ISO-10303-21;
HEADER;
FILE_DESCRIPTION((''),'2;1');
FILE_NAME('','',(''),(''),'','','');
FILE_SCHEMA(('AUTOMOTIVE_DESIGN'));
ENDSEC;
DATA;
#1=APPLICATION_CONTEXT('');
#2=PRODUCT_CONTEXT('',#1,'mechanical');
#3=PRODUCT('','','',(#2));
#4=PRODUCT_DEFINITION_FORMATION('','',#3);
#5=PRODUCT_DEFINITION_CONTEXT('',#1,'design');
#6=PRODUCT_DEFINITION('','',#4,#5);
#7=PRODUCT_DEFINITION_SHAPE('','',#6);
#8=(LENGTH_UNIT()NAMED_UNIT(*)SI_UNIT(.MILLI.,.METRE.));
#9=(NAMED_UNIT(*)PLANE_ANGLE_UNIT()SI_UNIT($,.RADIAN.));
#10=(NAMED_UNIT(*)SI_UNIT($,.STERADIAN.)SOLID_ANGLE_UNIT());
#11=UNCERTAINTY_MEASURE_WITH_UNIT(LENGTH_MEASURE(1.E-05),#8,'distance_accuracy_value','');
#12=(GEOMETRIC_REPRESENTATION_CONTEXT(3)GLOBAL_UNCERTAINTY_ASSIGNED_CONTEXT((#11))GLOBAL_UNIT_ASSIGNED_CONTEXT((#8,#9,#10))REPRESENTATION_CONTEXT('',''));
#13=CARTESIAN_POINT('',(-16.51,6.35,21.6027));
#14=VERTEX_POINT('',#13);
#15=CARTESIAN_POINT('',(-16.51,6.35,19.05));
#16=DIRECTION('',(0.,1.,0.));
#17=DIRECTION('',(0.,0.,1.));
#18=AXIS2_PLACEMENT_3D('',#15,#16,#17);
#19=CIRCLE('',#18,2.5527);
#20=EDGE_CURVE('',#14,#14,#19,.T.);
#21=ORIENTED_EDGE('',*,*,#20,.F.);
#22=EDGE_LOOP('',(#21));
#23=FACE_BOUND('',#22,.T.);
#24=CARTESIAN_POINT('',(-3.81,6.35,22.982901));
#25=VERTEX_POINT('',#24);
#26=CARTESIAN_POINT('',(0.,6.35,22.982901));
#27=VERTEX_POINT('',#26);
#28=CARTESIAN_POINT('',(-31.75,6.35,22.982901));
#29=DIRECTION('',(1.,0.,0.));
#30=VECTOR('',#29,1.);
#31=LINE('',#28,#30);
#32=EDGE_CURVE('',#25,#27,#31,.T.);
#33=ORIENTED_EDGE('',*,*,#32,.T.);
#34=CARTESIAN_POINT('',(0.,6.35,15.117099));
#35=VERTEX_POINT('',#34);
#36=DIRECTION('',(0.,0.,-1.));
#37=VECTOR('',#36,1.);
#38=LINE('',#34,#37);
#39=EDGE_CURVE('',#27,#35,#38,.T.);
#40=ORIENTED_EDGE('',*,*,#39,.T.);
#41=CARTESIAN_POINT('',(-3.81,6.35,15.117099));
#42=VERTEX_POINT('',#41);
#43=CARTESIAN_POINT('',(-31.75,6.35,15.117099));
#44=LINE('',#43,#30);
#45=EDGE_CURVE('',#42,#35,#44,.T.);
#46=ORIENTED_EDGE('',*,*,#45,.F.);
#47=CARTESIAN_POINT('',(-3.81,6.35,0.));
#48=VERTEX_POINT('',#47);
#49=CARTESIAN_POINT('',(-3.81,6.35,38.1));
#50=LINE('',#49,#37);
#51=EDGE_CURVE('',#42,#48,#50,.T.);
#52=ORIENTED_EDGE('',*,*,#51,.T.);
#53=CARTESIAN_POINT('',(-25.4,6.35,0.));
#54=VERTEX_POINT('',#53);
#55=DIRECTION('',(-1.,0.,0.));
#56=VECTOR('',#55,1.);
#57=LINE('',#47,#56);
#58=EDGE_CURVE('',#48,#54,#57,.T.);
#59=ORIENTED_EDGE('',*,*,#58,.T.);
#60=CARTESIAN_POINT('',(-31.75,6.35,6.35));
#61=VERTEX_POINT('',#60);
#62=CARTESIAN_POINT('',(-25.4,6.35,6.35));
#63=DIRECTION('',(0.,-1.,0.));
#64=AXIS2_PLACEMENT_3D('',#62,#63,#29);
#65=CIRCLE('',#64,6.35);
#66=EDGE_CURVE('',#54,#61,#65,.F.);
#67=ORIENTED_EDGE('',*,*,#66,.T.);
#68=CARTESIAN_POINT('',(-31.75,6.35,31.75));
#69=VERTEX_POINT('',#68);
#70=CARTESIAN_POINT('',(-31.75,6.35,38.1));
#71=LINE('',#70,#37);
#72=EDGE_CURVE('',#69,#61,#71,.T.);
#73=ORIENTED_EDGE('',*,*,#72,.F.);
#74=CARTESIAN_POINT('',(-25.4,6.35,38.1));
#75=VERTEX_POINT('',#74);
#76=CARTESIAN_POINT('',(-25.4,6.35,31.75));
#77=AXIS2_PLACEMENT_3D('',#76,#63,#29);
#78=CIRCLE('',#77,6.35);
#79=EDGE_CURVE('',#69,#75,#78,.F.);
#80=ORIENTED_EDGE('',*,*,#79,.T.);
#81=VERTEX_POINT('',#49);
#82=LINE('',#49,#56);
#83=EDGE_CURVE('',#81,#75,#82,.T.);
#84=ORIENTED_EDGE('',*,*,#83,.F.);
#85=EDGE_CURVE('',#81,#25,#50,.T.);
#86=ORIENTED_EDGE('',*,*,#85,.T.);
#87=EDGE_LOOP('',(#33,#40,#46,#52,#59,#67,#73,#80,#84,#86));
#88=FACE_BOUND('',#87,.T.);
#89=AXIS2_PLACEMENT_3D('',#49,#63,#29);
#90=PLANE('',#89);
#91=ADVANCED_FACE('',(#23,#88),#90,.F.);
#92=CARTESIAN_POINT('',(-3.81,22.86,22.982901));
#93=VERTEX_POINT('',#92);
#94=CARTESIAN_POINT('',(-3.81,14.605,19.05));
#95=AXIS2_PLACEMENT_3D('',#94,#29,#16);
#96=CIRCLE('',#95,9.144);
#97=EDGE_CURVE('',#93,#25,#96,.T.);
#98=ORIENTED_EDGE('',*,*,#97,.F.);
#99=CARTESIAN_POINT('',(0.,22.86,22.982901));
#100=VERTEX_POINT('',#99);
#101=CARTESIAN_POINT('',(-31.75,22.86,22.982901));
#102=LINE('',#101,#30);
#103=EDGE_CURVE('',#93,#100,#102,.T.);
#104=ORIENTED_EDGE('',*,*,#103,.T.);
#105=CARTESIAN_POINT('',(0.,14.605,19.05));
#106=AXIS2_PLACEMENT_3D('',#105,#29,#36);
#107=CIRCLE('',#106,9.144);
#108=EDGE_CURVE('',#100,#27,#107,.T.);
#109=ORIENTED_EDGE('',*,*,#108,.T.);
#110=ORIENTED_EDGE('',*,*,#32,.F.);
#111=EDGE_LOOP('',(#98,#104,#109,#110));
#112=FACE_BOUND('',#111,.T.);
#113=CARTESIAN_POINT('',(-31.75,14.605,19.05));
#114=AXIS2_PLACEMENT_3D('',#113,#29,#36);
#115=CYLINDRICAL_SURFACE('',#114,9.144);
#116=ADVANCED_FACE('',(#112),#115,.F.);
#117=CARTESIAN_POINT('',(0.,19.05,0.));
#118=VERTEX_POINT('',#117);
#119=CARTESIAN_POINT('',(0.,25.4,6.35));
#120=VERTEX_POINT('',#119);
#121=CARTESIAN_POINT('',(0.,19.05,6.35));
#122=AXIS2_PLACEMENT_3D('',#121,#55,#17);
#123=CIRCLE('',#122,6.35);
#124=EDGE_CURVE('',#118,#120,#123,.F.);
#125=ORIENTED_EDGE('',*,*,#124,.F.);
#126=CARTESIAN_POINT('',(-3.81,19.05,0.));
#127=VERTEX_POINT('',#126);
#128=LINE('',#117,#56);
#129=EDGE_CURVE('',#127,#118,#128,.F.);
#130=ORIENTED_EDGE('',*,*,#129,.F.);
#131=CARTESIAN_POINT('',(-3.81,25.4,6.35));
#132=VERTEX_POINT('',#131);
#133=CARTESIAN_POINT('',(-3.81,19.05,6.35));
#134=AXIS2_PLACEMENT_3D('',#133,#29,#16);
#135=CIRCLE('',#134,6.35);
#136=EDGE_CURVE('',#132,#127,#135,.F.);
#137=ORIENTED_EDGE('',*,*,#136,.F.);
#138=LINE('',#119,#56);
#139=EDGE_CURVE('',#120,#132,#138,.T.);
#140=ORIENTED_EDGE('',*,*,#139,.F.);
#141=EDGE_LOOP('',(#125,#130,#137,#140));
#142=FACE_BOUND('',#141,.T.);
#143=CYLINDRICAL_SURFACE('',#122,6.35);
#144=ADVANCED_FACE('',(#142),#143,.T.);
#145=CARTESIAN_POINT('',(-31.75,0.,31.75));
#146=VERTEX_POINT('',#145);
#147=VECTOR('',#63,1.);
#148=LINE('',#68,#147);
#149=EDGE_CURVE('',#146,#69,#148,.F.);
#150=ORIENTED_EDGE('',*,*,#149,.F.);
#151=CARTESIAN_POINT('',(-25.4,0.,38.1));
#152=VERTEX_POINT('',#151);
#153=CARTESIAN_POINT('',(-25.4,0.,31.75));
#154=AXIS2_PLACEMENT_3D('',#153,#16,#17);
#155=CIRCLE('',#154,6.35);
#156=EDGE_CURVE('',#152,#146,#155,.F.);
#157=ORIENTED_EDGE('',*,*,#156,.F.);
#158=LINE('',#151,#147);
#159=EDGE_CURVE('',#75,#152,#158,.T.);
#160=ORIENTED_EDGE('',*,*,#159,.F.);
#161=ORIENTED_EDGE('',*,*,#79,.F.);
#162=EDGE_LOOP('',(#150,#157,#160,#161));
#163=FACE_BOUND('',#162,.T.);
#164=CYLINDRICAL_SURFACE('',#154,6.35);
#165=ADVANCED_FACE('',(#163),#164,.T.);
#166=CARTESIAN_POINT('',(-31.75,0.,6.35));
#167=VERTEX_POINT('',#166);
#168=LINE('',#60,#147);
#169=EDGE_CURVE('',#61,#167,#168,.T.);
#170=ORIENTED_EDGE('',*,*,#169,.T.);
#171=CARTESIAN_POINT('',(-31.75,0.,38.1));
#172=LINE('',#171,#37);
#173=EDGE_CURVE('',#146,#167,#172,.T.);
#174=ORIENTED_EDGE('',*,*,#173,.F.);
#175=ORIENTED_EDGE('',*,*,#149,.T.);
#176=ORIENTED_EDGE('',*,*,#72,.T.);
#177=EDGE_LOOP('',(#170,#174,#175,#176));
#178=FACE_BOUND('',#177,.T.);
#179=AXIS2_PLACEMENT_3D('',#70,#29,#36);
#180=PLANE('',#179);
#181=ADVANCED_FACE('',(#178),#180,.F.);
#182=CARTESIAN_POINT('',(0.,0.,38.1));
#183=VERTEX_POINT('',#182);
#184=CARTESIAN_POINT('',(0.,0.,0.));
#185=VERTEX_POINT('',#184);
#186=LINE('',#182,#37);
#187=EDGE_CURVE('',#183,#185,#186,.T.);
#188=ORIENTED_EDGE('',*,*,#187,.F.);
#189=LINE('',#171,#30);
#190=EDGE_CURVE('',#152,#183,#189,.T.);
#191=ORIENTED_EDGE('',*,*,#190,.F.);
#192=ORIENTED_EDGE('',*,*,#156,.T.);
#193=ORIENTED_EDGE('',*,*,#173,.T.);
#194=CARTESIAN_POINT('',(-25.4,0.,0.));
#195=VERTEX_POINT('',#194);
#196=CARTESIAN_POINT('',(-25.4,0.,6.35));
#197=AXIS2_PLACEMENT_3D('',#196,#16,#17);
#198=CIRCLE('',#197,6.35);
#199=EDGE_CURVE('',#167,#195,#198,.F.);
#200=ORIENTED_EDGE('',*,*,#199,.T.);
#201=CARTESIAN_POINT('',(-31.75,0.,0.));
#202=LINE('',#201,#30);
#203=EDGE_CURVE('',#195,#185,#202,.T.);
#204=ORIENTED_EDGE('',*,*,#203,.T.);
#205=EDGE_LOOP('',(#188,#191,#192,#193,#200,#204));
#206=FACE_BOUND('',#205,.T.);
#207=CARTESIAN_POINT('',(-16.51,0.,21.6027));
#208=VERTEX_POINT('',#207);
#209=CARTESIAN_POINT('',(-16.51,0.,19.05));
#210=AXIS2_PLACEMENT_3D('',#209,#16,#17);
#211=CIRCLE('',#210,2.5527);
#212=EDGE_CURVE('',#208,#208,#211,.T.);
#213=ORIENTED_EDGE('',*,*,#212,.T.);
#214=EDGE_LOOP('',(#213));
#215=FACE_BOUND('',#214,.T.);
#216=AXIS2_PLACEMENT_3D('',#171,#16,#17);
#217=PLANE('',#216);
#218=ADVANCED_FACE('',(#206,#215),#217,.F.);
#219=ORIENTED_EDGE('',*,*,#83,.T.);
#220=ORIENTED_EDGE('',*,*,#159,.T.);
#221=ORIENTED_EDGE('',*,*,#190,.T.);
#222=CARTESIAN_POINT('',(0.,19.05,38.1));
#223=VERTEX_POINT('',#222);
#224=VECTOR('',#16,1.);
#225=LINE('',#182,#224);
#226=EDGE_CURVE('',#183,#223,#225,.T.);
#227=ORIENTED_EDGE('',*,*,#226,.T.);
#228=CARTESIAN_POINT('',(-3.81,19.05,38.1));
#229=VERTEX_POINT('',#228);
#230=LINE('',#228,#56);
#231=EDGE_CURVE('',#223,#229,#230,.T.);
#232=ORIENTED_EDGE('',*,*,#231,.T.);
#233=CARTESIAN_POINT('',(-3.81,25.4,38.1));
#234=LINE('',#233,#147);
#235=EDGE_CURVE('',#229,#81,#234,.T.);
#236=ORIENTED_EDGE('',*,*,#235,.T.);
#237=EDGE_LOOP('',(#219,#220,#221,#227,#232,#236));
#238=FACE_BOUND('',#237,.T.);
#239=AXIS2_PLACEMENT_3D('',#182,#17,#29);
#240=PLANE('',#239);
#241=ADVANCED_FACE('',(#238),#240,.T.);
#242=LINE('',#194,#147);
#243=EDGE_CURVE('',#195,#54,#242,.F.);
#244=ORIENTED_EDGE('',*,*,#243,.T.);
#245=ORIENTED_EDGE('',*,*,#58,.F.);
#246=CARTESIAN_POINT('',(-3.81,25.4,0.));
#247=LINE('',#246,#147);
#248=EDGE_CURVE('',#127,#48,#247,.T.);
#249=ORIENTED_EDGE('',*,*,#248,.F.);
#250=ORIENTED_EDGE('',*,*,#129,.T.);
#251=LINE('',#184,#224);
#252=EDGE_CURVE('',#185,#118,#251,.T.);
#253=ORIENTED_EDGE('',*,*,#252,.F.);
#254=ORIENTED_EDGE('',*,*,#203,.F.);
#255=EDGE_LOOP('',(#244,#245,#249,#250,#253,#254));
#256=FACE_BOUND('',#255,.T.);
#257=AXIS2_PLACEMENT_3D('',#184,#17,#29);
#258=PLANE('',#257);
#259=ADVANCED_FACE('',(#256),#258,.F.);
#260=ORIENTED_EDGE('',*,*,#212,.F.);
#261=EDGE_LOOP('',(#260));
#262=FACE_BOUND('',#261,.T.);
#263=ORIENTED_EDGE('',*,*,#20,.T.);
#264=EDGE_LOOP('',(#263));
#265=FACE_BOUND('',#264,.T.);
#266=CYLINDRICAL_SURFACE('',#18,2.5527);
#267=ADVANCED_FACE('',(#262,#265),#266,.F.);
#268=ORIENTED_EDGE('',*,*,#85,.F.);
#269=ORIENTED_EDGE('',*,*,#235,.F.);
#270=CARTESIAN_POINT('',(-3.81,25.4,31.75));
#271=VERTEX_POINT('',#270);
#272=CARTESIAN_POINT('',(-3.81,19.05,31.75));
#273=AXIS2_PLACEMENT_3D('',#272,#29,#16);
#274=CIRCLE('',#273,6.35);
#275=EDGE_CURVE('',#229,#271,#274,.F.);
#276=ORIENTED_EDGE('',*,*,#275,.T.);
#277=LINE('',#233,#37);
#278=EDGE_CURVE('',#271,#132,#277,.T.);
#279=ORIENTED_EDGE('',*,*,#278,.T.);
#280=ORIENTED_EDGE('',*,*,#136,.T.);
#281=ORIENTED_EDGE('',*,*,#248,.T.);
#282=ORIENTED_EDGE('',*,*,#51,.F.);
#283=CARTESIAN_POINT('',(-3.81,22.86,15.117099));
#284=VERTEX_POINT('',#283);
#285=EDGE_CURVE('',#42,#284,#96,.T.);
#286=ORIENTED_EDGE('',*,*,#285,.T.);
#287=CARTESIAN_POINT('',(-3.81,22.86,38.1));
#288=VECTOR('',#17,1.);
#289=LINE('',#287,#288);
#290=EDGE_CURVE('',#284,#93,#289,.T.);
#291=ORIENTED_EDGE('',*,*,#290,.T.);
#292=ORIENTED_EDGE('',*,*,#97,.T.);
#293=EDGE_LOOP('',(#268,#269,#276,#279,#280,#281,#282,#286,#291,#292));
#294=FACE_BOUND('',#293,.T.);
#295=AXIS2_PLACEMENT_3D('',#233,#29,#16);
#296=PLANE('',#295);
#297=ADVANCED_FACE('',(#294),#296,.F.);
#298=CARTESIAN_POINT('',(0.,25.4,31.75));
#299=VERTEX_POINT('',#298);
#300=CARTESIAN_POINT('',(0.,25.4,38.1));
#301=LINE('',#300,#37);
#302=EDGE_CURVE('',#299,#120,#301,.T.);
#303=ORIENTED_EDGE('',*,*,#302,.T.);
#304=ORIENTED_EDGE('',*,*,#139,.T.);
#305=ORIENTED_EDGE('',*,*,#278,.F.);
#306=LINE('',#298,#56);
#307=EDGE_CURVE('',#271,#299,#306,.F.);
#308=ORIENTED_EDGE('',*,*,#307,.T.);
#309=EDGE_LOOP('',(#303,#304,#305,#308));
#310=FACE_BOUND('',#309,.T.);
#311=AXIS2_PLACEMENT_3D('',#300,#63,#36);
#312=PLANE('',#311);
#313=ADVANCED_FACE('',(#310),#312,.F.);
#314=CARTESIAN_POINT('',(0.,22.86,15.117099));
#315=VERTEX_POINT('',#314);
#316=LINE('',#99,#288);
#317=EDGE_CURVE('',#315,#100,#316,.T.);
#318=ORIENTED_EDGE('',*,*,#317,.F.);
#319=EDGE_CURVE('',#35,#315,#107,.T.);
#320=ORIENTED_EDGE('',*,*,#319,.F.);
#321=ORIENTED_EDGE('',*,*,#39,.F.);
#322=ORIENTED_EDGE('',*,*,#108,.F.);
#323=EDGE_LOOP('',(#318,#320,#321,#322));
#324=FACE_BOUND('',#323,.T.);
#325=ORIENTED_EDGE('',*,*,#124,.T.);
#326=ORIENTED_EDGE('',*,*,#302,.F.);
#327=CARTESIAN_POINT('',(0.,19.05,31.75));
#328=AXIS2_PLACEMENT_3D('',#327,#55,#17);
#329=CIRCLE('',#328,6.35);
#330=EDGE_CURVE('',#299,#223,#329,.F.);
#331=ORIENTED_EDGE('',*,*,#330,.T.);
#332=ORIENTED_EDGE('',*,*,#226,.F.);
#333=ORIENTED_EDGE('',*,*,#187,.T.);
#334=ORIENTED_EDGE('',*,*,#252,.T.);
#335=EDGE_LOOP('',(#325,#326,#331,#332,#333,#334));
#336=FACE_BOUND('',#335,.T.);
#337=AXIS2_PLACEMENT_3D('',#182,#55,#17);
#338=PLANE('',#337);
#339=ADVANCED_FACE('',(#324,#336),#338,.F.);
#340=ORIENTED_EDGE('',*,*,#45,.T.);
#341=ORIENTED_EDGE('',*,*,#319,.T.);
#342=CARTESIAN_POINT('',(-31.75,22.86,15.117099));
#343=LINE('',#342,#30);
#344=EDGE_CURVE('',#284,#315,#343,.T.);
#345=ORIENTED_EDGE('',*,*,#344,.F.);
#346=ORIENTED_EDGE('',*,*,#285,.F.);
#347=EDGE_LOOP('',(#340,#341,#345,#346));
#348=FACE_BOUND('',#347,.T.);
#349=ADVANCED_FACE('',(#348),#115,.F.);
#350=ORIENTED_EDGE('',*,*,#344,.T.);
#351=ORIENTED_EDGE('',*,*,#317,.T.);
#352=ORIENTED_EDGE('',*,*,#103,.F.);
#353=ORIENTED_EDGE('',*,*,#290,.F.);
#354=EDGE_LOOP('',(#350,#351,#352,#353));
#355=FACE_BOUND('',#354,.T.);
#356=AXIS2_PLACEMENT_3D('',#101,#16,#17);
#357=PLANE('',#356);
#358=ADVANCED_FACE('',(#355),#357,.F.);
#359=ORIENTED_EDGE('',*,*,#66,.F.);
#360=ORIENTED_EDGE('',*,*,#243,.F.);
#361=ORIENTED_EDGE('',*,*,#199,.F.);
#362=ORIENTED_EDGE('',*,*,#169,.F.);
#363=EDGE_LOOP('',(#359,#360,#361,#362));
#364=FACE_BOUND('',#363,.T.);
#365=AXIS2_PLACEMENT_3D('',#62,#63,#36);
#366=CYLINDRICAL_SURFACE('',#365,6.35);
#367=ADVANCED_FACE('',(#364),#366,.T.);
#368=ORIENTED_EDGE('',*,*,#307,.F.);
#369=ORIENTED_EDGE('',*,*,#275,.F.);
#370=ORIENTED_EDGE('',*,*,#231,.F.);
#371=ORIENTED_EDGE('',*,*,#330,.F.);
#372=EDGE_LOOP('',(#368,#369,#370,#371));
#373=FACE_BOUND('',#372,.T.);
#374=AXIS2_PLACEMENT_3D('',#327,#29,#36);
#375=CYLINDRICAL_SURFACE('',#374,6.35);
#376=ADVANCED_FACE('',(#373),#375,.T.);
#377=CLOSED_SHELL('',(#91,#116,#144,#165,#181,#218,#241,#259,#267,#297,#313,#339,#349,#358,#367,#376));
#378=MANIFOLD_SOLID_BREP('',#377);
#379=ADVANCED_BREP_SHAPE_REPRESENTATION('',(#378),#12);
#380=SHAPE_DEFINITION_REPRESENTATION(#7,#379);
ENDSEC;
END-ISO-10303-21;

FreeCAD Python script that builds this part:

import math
import FreeCAD as App
import Part
import Sketcher
Q = App.Units.Quantity


def edges_at(feature, points):
    """Names of the edges that pass closest to the given points."""
    edges = feature.Shape.Edges
    near = lambda p: min(range(len(edges)), key=lambda i: edges[i].distToShape(Part.Vertex(*p))[0])
    return sorted({f"Edge{near(p) + 1}" for p in points})


def add_polygon(sketch, points):
    """Adds a closed chain of lines whose ends are joined by coincident constraints."""
    first, n = sketch.GeometryCount, len(points)
    for a, b in zip(points, points[1:] + points[:1]):
        sketch.addGeometry(Part.LineSegment(App.Vector(*a, 0), App.Vector(*b, 0)), False)
    for i in range(n):
        sketch.addConstraint(Sketcher.Constraint("Coincident", first + i, 2, first + (i + 1) % n, 1))

doc = App.newDocument("Part")
body = doc.addObject("PartDesign::Body", "Body")

sketch1 = body.newObject("Sketcher::SketchObject", "Sketch")
sketch1.AttachmentSupport = (doc.getObject("XY_Plane"), [""])
sketch1.MapMode = "FlatFace"
add_polygon(sketch1, [(0, 0), (0, 25.4), (-3.8, 25.4), (-3.8, 6.3), (-31.8, 6.3), (-31.8, 0)])
sketch1.addConstraint(Sketcher.Constraint("Vertical", 0))
sketch1.addConstraint(Sketcher.Constraint("Horizontal", 1))
sketch1.addConstraint(Sketcher.Constraint("Vertical", 2))
sketch1.addConstraint(Sketcher.Constraint("Horizontal", 3))
sketch1.addConstraint(Sketcher.Constraint("Vertical", 4))
sketch1.addConstraint(Sketcher.Constraint("Horizontal", 5))
sketch1.addConstraint(Sketcher.Constraint("Coincident", 5, 2, -1, 1))
sketch1.addConstraint(Sketcher.Constraint("DistanceY", 0, 1, 0, 2, Q("1 in")))
sketch1.addConstraint(Sketcher.Constraint("DistanceX", 3, 2, 3, 1, Q("1.1 in")))
sketch1.addConstraint(Sketcher.Constraint("DistanceX", 1, 2, 1, 1, Q("0.15 in")))
sketch1.addConstraint(Sketcher.Constraint("DistanceY", 2, 2, 2, 1, Q("0.75 in")))
pad1 = body.newObject("PartDesign::Pad", "Pad")
pad1.Profile = sketch1
pad1.Length = Q("1.5 in")

sketch2 = body.newObject("Sketcher::SketchObject", "Sketch001")
sketch2.AttachmentSupport = (doc.getObject("XZ_Plane"), [""])
sketch2.MapMode = "FlatFace"
sketch2.AttachmentOffset = App.Placement(App.Vector(0, 0, -0.25 * 25.4), App.Rotation())
sketch2.addGeometry(Part.Circle(App.Vector(-16.5, 19.1, 0), App.Vector(0, 0, 1), 2.6), False)
sketch2.addConstraint(Sketcher.Constraint("Diameter", 0, Q("0.201 in")))
sketch2.addConstraint(Sketcher.Constraint("DistanceX", 0, 3, -1, 1, Q("0.65 in")))
sketch2.addConstraint(Sketcher.Constraint("DistanceY", -1, 1, 0, 3, Q("0.75 in")))
doc.recompute()
hole = body.newObject("PartDesign::Hole", "Hole")
hole.Profile = sketch2
hole.ThreadType = "None"
hole.Diameter = Q("0.201 in")
hole.DepthType = "ThroughAll"
hole.Reversed = True

sketch3 = body.newObject("Sketcher::SketchObject", "Sketch002")
sketch3.AttachmentSupport = (doc.getObject("YZ_Plane"), [""])
sketch3.MapMode = "FlatFace"
sketch3.addGeometry(Part.LineSegment(App.Vector(23, 15, 0), App.Vector(23, 23, 0)), False)
sketch3.addGeometry(Part.ArcOfCircle(Part.Circle(App.Vector(15, 19, 0), App.Vector(0, 0, 1), 9), math.radians(25), math.radians(155)), False)
sketch3.addGeometry(Part.LineSegment(App.Vector(6, 23, 0), App.Vector(6, 15, 0)), False)
sketch3.addGeometry(Part.ArcOfCircle(Part.Circle(App.Vector(15, 19, 0), App.Vector(0, 0, 1), 9), math.radians(-155), math.radians(-25)), False)
sketch3.addConstraint(Sketcher.Constraint("Coincident", 0, 2, 1, 1))
sketch3.addConstraint(Sketcher.Constraint("Coincident", 1, 2, 2, 1))
sketch3.addConstraint(Sketcher.Constraint("Coincident", 2, 2, 3, 1))
sketch3.addConstraint(Sketcher.Constraint("Coincident", 3, 2, 0, 1))
sketch3.addConstraint(Sketcher.Constraint("Vertical", 0))
sketch3.addConstraint(Sketcher.Constraint("Vertical", 2))
sketch3.addConstraint(Sketcher.Constraint("Coincident", 3, 3, 1, 3))
sketch3.addConstraint(Sketcher.Constraint("Equal", 1, 3))
sketch3.addConstraint(Sketcher.Constraint("Horizontal", 0, 2, 1, 2))
sketch3.addConstraint(Sketcher.Constraint("Radius", 1, Q("0.36 in")))
sketch3.addConstraint(Sketcher.Constraint("DistanceX", -1, 1, 0, 2, Q("0.9 in")))
sketch3.addConstraint(Sketcher.Constraint("DistanceY", -1, 1, 1, 3, Q("0.75 in")))
sketch3.addConstraint(Sketcher.Constraint("DistanceX", -1, 1, 1, 2, Q("0.25 in")))
pocket1 = body.newObject("PartDesign::Pocket", "Pocket")
pocket1.Profile = sketch3
pocket1.Type = "ThroughAll"
doc.recompute()

fillet = body.newObject("PartDesign::Fillet", "Fillet")
fillet.Base = (pocket1, edges_at(pocket1, [
    (-1.905, 25.4, 38.1),
    (-31.75, 3.175, 38.1),
    (-31.75, 3.175, 0),
    (-1.905, 25.4, 0),
]))
fillet.Radius = Q("0.25 in")

doc.recompute()
